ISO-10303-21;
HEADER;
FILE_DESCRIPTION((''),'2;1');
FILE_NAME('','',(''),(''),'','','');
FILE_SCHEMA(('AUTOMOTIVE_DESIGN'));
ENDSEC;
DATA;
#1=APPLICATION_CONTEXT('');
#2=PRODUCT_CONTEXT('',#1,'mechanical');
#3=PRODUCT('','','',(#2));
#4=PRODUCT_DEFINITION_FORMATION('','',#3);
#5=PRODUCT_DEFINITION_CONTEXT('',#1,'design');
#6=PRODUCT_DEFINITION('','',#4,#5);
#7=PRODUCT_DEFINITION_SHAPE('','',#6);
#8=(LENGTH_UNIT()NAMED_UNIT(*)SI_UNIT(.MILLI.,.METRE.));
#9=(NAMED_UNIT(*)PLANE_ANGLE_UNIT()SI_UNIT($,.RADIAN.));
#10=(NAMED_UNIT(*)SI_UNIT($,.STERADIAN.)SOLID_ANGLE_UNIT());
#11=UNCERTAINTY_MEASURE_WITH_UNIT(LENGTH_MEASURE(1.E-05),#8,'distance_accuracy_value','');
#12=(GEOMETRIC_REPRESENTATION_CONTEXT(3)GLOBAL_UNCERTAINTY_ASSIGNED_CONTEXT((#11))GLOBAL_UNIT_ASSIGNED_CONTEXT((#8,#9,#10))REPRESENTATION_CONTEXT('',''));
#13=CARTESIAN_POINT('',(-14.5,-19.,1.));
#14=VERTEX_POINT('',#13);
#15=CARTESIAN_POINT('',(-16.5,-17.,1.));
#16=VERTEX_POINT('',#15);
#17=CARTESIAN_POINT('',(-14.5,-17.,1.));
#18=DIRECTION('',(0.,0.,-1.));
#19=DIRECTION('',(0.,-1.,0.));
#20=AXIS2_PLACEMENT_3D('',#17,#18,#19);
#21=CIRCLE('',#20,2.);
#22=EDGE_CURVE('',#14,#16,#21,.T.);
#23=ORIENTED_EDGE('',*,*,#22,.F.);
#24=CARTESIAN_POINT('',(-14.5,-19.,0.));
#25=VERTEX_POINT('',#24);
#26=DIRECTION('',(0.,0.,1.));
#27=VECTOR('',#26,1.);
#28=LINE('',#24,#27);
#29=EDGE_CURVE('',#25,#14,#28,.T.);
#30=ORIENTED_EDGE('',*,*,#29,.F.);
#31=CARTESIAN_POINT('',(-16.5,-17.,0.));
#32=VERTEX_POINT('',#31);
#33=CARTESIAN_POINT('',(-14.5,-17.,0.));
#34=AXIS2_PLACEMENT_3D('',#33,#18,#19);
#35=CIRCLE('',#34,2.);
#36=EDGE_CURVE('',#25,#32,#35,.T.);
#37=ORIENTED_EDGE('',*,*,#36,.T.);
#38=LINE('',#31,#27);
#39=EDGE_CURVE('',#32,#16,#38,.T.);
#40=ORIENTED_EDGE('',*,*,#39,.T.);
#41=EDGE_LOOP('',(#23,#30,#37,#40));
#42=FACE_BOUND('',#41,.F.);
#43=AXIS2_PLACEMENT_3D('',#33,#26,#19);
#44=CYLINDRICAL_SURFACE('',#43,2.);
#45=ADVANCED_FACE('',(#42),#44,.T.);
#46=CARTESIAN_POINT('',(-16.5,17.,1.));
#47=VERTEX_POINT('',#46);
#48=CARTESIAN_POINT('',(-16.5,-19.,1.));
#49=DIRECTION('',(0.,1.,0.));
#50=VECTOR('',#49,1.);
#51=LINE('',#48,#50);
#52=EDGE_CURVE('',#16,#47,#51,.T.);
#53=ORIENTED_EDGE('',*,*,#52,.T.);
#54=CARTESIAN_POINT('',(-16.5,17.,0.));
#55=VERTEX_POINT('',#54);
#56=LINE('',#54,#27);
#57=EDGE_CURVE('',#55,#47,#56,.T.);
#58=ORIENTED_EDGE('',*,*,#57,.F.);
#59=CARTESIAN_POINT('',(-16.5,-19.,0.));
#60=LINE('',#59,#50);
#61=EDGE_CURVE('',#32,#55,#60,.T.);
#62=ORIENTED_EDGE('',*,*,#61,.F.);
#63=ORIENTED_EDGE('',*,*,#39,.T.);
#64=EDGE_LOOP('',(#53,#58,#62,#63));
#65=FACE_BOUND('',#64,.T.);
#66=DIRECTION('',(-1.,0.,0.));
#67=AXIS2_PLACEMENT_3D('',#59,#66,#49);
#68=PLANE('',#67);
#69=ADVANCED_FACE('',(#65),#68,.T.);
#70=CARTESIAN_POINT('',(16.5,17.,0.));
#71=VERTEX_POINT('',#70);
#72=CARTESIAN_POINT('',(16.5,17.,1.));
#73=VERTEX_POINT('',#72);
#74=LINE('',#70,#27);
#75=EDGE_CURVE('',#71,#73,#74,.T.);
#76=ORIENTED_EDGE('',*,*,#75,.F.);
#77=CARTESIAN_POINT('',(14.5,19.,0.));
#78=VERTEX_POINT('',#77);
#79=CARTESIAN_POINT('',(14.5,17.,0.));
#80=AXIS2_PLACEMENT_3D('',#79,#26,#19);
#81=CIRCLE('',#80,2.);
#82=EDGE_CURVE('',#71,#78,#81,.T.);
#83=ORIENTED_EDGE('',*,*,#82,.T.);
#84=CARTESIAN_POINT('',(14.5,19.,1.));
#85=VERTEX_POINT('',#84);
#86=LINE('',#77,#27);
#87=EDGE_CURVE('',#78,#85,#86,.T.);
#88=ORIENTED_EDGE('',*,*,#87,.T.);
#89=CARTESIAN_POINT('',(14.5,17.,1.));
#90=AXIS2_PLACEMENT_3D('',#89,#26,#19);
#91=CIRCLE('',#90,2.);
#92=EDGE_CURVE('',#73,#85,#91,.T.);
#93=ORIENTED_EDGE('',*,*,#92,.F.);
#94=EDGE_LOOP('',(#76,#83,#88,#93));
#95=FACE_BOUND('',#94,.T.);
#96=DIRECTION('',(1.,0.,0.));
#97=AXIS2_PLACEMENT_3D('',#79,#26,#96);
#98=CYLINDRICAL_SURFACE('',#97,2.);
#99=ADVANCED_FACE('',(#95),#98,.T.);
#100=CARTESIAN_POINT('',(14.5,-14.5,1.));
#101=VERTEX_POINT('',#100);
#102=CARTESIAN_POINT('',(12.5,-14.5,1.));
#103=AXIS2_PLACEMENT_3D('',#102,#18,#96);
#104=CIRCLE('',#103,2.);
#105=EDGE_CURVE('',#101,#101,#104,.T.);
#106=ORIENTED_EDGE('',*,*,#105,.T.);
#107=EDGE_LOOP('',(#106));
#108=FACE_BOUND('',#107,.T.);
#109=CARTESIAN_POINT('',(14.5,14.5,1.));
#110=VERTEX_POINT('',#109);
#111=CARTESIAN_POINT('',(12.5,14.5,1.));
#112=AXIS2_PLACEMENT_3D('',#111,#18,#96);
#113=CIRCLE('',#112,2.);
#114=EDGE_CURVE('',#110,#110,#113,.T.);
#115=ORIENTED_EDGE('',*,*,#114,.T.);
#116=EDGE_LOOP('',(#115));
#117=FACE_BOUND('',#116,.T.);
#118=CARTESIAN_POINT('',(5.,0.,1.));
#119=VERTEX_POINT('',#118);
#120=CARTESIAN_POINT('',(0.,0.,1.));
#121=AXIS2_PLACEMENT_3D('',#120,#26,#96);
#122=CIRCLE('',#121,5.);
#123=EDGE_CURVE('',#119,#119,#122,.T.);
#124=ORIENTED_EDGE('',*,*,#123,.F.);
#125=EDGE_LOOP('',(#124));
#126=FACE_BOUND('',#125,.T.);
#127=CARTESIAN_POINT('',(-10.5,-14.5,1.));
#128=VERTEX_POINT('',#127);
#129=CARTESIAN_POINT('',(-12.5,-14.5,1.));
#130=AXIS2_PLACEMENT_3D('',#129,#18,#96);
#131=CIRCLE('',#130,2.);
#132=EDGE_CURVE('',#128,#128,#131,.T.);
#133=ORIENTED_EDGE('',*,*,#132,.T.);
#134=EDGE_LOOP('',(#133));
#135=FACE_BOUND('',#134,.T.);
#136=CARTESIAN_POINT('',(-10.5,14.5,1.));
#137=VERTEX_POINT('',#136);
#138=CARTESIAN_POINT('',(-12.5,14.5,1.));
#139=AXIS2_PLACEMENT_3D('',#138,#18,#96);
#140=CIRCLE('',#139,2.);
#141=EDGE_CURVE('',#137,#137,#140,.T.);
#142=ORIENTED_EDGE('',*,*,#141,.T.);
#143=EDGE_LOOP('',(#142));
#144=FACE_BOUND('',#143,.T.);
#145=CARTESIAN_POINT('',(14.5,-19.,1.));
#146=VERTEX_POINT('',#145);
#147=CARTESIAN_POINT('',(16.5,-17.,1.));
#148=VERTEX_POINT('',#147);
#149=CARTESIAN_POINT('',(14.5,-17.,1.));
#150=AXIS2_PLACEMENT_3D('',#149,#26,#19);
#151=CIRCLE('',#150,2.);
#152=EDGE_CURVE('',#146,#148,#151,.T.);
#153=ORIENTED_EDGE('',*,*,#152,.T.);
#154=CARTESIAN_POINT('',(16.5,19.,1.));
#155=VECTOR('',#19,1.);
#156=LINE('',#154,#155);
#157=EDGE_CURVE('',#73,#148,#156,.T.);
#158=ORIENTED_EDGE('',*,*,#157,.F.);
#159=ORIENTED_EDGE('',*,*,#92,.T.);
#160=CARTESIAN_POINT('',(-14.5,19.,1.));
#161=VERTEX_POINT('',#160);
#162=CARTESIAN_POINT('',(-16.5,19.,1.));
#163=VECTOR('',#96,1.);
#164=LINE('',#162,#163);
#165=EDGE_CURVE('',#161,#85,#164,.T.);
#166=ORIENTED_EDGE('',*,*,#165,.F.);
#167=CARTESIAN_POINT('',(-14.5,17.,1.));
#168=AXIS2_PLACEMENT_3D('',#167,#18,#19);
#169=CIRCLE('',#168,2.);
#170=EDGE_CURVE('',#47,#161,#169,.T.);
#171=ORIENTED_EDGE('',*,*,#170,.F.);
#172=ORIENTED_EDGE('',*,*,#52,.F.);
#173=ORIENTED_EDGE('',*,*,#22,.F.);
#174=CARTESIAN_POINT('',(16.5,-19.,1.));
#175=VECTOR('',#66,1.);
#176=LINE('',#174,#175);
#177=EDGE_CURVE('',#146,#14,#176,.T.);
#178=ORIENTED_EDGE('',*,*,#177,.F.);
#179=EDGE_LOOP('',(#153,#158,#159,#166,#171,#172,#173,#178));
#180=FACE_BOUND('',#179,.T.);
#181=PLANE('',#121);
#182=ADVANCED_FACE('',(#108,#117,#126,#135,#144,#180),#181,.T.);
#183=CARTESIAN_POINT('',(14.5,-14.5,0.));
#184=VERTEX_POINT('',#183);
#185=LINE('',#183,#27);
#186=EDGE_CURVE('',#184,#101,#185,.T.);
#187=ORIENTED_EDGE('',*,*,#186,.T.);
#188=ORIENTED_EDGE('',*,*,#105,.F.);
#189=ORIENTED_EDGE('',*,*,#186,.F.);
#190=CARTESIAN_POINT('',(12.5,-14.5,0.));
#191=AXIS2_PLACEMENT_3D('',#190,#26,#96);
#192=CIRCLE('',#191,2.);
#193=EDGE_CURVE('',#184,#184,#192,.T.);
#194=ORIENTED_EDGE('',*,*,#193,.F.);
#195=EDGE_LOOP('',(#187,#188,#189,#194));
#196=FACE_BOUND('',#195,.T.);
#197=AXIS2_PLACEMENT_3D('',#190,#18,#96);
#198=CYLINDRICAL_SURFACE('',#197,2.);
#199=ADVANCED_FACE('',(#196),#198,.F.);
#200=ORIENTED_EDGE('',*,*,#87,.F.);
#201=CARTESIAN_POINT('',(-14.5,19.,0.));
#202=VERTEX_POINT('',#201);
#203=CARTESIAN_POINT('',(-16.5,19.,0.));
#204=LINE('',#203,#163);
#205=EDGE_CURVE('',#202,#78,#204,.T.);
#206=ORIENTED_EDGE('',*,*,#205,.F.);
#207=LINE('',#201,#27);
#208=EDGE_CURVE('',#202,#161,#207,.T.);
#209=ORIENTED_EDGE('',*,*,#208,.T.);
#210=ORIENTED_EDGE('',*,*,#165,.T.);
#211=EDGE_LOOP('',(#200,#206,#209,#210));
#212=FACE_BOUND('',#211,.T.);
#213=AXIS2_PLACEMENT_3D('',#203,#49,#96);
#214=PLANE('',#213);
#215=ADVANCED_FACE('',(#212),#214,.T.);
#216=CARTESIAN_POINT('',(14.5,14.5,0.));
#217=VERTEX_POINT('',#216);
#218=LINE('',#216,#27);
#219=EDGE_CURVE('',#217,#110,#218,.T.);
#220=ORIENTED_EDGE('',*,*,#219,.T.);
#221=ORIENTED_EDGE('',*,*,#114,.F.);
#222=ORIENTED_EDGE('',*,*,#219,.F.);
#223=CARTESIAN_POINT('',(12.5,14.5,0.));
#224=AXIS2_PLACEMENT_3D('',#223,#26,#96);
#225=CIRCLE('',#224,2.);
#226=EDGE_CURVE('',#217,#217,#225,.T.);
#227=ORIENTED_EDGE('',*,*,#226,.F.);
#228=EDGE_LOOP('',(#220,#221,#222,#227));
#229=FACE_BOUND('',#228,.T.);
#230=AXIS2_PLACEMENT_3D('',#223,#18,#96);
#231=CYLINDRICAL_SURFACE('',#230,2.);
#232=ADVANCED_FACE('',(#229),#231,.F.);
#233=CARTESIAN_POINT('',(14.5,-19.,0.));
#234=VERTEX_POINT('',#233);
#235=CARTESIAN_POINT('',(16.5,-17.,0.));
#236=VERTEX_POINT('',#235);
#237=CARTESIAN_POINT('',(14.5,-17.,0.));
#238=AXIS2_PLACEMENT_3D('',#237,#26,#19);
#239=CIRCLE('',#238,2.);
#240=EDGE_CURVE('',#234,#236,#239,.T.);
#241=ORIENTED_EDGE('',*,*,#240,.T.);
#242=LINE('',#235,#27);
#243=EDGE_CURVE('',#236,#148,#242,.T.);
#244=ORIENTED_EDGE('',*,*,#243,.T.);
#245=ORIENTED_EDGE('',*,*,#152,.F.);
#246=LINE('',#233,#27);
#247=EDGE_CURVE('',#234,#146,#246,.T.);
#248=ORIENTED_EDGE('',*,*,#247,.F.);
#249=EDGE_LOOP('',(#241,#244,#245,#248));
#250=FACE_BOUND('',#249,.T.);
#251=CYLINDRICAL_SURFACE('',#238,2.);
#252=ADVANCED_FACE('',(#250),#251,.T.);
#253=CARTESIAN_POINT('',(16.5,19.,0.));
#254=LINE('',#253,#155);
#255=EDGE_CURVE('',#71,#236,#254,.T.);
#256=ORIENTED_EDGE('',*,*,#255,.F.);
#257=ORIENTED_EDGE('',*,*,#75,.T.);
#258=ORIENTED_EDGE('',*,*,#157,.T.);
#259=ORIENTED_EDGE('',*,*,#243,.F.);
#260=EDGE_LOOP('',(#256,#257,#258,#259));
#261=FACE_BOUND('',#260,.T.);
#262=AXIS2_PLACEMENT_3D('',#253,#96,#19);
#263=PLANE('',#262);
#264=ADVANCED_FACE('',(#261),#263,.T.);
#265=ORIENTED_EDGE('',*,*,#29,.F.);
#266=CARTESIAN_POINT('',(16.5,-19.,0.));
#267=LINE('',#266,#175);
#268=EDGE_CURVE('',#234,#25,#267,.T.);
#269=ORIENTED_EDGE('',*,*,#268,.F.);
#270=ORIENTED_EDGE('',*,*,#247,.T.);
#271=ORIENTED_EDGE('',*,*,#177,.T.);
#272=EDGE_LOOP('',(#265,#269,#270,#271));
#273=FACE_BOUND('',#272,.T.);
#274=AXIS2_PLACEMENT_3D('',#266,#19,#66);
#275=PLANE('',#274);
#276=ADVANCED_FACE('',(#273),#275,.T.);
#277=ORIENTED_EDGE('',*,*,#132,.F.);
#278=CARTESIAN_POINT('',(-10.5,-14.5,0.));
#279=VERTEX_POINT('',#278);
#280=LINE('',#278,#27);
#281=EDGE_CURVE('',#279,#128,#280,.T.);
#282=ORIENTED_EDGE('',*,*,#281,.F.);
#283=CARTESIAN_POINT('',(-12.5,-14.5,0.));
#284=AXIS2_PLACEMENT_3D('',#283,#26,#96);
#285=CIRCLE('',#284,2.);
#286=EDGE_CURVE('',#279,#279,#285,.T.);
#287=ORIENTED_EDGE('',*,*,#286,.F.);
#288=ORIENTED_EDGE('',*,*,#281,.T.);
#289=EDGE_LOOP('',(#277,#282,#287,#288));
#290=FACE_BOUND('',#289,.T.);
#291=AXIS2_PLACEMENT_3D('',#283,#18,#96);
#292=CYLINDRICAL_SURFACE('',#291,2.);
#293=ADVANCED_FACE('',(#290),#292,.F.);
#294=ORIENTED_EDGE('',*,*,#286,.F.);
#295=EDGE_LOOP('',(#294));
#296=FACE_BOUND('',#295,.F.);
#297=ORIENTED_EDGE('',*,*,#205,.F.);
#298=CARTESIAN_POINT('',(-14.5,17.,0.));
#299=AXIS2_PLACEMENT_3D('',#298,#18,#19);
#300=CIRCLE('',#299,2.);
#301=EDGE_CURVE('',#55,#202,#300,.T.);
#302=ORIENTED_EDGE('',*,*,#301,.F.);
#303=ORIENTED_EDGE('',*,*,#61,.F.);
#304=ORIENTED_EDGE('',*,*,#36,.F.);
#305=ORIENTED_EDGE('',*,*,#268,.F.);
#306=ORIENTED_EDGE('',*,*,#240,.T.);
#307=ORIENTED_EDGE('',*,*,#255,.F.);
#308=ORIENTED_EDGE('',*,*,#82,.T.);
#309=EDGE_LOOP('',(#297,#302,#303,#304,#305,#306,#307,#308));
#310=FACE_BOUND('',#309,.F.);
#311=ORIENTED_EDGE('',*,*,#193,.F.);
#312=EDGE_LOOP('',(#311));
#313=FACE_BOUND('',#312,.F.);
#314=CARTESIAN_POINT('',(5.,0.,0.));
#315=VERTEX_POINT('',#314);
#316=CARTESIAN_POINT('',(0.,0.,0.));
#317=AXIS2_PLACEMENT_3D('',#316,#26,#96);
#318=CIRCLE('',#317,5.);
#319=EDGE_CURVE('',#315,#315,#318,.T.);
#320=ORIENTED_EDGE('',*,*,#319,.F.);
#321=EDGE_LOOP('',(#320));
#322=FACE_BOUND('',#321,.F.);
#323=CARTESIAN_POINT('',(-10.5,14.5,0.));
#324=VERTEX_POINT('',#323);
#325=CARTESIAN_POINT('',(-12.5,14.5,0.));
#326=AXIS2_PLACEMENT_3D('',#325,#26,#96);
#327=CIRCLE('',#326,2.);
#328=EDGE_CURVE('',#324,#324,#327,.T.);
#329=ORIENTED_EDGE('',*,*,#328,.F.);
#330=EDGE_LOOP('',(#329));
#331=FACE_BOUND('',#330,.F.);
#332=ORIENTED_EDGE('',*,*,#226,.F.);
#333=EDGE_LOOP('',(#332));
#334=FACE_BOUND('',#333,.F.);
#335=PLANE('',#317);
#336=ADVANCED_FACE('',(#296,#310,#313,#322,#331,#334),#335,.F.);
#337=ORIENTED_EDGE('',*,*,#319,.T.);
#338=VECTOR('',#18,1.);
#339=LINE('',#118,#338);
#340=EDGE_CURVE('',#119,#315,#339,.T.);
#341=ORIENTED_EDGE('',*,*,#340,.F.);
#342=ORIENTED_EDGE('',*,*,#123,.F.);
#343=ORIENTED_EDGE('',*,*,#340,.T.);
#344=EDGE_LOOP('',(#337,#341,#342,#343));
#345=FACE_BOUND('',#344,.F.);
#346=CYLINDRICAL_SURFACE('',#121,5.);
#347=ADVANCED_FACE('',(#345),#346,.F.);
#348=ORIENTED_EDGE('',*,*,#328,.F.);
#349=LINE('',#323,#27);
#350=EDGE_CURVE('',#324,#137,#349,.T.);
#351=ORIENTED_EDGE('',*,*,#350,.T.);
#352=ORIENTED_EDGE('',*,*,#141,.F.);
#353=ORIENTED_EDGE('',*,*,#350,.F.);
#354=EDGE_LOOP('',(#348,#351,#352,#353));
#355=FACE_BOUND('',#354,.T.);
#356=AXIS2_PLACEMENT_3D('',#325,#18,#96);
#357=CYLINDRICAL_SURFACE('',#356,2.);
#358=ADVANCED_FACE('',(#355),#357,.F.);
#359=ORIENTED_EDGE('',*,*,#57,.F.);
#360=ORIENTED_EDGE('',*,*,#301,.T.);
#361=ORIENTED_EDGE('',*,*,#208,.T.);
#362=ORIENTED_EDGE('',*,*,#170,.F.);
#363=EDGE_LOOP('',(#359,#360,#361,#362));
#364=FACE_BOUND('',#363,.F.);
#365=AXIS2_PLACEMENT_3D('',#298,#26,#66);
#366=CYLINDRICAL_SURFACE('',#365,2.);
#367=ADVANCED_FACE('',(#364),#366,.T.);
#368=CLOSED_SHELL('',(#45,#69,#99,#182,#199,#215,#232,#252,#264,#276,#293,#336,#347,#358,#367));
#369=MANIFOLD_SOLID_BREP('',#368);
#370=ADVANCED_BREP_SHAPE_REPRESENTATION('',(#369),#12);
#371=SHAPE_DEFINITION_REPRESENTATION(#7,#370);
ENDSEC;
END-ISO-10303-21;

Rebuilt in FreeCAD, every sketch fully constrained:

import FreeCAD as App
import Part
import Sketcher
Q = App.Units.Quantity


def edges_at(feature, points):
    """Names of the edges that pass closest to the given points."""
    edges = feature.Shape.Edges
    near = lambda p: min(range(len(edges)), key=lambda i: edges[i].distToShape(Part.Vertex(*p))[0])
    return sorted({f"Edge{near(p) + 1}" for p in points})


def add_polygon(sketch, points):
    """Adds a closed chain of lines whose ends are joined by coincident constraints."""
    first, n = sketch.GeometryCount, len(points)
    for a, b in zip(points, points[1:] + points[:1]):
        sketch.addGeometry(Part.LineSegment(App.Vector(*a, 0), App.Vector(*b, 0)), False)
    for i in range(n):
        sketch.addConstraint(Sketcher.Constraint("Coincident", first + i, 2, first + (i + 1) % n, 1))

doc = App.newDocument("Part")
body = doc.addObject("PartDesign::Body", "Body")

# Sketch on XY plane
sketch1 = body.newObject("Sketcher::SketchObject", "Sketch")
sketch1.AttachmentSupport = (doc.getObject("XY_Plane"), [""])
sketch1.MapMode = "FlatFace"
add_polygon(sketch1, [(-16.5, -19), (16.5, -19), (16.5, 19), (-16.5, 19)])  # lines 0-3
sketch1.addGeometry(Part.Circle(App.Vector(12.5, -14.5, 0), App.Vector(0, 0, 1), 2), False)  # 4
sketch1.addGeometry(Part.Circle(App.Vector(12.5, 14.5, 0), App.Vector(0, 0, 1), 2), False)  # 5
sketch1.addGeometry(Part.Circle(App.Vector(-12.5, 14.5, 0), App.Vector(0, 0, 1), 2), False)  # 6
sketch1.addGeometry(Part.Circle(App.Vector(-12.5, -14.5, 0), App.Vector(0, 0, 1), 2), False)  # 7
sketch1.addConstraint(Sketcher.Constraint("Horizontal", 0))
sketch1.addConstraint(Sketcher.Constraint("Vertical", 1))
sketch1.addConstraint(Sketcher.Constraint("Horizontal", 2))
sketch1.addConstraint(Sketcher.Constraint("Vertical", 3))
sketch1.addConstraint(Sketcher.Constraint("Equal", 4, 5))
sketch1.addConstraint(Sketcher.Constraint("Equal", 5, 6))
sketch1.addConstraint(Sketcher.Constraint("Equal", 6, 7))
sketch1.addConstraint(Sketcher.Constraint("Symmetric", 4, 3, 6, 3, -1, 1))
sketch1.addConstraint(Sketcher.Constraint("Symmetric", 5, 3, 7, 3, -1, 1))
sketch1.addConstraint(Sketcher.Constraint("Symmetric", 0, 2, 2, 2, -1, 1))
sketch1.addConstraint(Sketcher.Constraint("Symmetric", 5, 3, 6, 3, -2))
sketch1.addConstraint(Sketcher.Constraint("Diameter", 4, Q("4 mm")))
sketch1.addConstraint(Sketcher.Constraint("DistanceX", 0, 1, 0, 2, Q("33 mm")))
sketch1.addConstraint(Sketcher.Constraint("DistanceY", 1, 1, 1, 2, Q("38 mm")))
sketch1.addConstraint(Sketcher.Constraint("DistanceY", 4, 3, 5, 3, Q("29 mm")))
sketch1.addConstraint(Sketcher.Constraint("DistanceX", 6, 3, 5, 3, Q("25 mm")))
pad1 = body.newObject("PartDesign::Pad", "Pad")
pad1.Profile = sketch1
pad1.Length = 1
doc.recompute()

fillet = body.newObject("PartDesign::Fillet", "Fillet")
fillet.Base = (pad1, edges_at(pad1, [
    (-16.5, 19, 0.5),
    (16.5, 19, 0.5),
    (16.5, -19, 0.5),
    (-16.5, -19, 0.5),
]))
fillet.Radius = 2

# Sketch on XY plane
sketch2 = body.newObject("Sketcher::SketchObject", "Sketch001")
sketch2.AttachmentSupport = (doc.getObject("XY_Plane"), [""])
sketch2.MapMode = "FlatFace"
sketch2.AttachmentOffset = App.Placement(App.Vector(0, 0, 1), App.Rotation())
sketch2.addGeometry(Part.Circle(App.Vector(0, 0, 0), App.Vector(0, 0, 1), 5), False)
sketch2.addConstraint(Sketcher.Constraint("Coincident", 0, 3, -1, 1))
sketch2.addConstraint(Sketcher.Constraint("Diameter", 0, Q("10 mm")))
pocket1 = body.newObject("PartDesign::Pocket", "Pocket")
pocket1.Profile = sketch2
pocket1.Type = "ThroughAll"

doc.recompute()
